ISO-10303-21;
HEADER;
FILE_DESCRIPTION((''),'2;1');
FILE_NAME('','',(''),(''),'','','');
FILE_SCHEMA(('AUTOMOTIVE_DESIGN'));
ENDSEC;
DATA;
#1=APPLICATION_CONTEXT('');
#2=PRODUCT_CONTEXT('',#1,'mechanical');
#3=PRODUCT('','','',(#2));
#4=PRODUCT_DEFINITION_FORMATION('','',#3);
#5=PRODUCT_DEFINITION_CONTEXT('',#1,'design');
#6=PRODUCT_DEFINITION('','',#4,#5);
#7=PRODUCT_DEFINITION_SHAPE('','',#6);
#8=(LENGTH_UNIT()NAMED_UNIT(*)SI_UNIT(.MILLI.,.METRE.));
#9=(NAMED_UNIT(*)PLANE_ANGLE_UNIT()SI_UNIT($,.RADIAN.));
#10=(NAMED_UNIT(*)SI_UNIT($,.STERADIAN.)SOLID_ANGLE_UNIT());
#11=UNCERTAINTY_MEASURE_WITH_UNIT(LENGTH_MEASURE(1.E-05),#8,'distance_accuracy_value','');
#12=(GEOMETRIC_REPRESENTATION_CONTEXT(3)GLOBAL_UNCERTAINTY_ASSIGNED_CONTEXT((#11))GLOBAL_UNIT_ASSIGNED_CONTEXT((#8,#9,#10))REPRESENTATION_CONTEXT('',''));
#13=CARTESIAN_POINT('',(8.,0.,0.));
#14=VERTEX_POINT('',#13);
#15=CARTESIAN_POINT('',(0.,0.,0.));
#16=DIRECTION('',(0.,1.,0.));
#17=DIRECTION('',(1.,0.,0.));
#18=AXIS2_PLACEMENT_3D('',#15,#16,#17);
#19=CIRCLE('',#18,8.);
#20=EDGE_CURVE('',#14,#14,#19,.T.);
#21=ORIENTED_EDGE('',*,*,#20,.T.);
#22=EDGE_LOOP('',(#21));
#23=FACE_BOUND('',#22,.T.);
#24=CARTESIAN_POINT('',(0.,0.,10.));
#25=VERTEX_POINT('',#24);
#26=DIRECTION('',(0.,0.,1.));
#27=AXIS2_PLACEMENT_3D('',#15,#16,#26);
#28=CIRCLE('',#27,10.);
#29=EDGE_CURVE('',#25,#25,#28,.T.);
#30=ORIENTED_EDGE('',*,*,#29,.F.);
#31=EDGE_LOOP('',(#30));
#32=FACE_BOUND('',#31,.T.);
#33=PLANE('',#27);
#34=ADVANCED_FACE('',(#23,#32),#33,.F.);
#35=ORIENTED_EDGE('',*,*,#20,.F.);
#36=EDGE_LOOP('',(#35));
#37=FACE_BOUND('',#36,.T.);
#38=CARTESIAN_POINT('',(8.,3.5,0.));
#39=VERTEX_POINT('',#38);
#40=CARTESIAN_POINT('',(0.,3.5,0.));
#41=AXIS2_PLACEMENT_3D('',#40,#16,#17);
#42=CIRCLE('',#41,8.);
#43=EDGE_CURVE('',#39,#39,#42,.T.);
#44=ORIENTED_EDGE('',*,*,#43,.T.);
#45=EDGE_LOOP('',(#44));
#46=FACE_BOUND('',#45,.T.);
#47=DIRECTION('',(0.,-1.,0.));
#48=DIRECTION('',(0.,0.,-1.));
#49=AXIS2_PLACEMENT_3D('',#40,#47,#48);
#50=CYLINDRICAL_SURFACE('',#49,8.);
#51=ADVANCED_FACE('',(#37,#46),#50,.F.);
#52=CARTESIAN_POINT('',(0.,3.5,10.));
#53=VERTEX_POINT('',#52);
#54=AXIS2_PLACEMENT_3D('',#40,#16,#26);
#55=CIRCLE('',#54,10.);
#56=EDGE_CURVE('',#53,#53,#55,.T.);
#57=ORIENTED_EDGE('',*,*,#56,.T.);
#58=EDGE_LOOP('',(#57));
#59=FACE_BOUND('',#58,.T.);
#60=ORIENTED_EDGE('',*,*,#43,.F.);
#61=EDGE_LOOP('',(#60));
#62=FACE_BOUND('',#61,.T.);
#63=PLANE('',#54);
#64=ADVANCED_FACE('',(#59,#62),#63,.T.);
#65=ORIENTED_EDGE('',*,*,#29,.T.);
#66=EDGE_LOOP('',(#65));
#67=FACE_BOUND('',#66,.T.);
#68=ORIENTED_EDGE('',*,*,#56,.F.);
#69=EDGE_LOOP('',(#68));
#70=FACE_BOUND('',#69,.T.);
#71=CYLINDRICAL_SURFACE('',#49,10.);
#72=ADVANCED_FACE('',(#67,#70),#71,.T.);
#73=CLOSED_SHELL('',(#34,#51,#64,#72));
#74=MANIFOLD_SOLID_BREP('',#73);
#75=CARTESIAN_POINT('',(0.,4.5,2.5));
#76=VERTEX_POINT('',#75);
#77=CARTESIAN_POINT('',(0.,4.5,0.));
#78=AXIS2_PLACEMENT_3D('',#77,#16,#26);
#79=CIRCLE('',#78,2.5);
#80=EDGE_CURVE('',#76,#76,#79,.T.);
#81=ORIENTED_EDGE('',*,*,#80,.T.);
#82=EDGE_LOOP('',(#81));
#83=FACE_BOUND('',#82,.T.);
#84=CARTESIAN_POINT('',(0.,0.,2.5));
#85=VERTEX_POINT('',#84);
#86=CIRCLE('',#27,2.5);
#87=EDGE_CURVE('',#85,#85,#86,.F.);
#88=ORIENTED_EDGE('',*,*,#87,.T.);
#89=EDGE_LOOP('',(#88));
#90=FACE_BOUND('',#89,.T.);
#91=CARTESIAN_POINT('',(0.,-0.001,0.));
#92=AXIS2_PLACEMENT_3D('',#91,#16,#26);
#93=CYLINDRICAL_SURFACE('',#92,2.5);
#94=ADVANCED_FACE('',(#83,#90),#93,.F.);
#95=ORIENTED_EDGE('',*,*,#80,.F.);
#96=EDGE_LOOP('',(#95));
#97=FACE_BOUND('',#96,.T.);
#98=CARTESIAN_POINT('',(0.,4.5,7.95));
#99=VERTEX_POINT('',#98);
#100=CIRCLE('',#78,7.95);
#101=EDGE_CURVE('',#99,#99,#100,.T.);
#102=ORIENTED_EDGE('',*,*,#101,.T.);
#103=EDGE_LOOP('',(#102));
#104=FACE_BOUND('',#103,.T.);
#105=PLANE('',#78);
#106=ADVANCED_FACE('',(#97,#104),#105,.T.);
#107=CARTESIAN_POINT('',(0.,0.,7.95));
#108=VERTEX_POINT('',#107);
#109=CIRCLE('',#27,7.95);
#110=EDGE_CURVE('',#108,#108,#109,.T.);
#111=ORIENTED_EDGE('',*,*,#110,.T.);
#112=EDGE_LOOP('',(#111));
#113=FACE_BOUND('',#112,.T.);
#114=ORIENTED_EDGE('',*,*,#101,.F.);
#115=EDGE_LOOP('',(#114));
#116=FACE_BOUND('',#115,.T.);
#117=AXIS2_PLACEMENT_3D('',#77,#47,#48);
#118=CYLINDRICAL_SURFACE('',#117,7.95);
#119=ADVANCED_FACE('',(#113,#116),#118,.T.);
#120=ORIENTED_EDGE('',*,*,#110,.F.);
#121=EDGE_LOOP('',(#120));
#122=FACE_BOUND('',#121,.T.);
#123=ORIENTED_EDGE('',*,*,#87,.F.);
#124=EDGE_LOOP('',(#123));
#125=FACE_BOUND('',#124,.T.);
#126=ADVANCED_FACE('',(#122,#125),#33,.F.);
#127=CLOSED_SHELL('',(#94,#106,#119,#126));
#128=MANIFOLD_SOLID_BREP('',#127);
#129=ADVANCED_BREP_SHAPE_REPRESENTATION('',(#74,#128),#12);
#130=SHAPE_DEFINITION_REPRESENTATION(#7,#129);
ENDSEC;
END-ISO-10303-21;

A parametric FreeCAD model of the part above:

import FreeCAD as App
import Part
import Sketcher
Q = App.Units.Quantity

doc = App.newDocument("Part")
body = doc.addObject("PartDesign::Body", "Body")

# Sketch on XZ plane
sketch1 = body.newObject("Sketcher::SketchObject", "Sketch")
sketch1.AttachmentSupport = (doc.getObject("XZ_Plane"), [""])
sketch1.MapMode = "FlatFace"
sketch1.addGeometry(Part.Circle(App.Vector(0, 0, 0), App.Vector(0, 0, 1), 10), False)
sketch1.addGeometry(Part.Circle(App.Vector(0, 0, 0), App.Vector(0, 0, 1), 8), False)
sketch1.addConstraint(Sketcher.Constraint("Coincident", 0, 3, -1, 1))
sketch1.addConstraint(Sketcher.Constraint("Coincident", 1, 3, -1, 1))
sketch1.addConstraint(Sketcher.Constraint("Diameter", 0, Q("20 mm")))
sketch1.addConstraint(Sketcher.Constraint("Diameter", 1, Q("16 mm")))
pad1 = body.newObject("PartDesign::Pad", "Pad")
pad1.Profile = sketch1
pad1.Length = 3.5
pad1.Reversed = True
body2 = doc.addObject("PartDesign::Body", "Body001")

# Sketch on XZ plane
sketch2 = body2.newObject("Sketcher::SketchObject", "Sketch001")
sketch2.AttachmentSupport = (doc.getObject("XZ_Plane001"), [""])
sketch2.MapMode = "FlatFace"
sketch2.AttachmentOffset = App.Placement(App.Vector(0, 0, -3.5), App.Rotation())
sketch2.addGeometry(Part.Circle(App.Vector(0, 0, 0), App.Vector(0, 0, 1), 8), False)
sketch2.addConstraint(Sketcher.Constraint("Coincident", 0, 3, -1, 1))
sketch2.addConstraint(Sketcher.Constraint("Diameter", 0, Q("15.9 mm")))
pad2 = body2.newObject("PartDesign::Pad", "Pad001")
pad2.Profile = sketch2
pad2.Type = "TwoLengths"
pad2.Length = 1
pad2.Length2 = 3.5
pad2.Reversed = True

# Sketch on XZ plane
sketch3 = body2.newObject("Sketcher::SketchObject", "Sketch002")
sketch3.AttachmentSupport = (doc.getObject("XZ_Plane001"), [""])
sketch3.MapMode = "FlatFace"
sketch3.AttachmentOffset = App.Placement(App.Vector(0, 0, -4.5), App.Rotation())
sketch3.addGeometry(Part.Circle(App.Vector(0, 0, 0), App.Vector(0, 0, 1), 2.5), False)
sketch3.addConstraint(Sketcher.Constraint("Coincident", 0, 3, -1, 1))
sketch3.addConstraint(Sketcher.Constraint("Diameter", 0, Q("5 mm")))
pocket1 = body2.newObject("PartDesign::Pocket", "Pocket")
pocket1.Profile = sketch3
pocket1.Length = 4.5
pocket1.Reversed = True

doc.recompute()
